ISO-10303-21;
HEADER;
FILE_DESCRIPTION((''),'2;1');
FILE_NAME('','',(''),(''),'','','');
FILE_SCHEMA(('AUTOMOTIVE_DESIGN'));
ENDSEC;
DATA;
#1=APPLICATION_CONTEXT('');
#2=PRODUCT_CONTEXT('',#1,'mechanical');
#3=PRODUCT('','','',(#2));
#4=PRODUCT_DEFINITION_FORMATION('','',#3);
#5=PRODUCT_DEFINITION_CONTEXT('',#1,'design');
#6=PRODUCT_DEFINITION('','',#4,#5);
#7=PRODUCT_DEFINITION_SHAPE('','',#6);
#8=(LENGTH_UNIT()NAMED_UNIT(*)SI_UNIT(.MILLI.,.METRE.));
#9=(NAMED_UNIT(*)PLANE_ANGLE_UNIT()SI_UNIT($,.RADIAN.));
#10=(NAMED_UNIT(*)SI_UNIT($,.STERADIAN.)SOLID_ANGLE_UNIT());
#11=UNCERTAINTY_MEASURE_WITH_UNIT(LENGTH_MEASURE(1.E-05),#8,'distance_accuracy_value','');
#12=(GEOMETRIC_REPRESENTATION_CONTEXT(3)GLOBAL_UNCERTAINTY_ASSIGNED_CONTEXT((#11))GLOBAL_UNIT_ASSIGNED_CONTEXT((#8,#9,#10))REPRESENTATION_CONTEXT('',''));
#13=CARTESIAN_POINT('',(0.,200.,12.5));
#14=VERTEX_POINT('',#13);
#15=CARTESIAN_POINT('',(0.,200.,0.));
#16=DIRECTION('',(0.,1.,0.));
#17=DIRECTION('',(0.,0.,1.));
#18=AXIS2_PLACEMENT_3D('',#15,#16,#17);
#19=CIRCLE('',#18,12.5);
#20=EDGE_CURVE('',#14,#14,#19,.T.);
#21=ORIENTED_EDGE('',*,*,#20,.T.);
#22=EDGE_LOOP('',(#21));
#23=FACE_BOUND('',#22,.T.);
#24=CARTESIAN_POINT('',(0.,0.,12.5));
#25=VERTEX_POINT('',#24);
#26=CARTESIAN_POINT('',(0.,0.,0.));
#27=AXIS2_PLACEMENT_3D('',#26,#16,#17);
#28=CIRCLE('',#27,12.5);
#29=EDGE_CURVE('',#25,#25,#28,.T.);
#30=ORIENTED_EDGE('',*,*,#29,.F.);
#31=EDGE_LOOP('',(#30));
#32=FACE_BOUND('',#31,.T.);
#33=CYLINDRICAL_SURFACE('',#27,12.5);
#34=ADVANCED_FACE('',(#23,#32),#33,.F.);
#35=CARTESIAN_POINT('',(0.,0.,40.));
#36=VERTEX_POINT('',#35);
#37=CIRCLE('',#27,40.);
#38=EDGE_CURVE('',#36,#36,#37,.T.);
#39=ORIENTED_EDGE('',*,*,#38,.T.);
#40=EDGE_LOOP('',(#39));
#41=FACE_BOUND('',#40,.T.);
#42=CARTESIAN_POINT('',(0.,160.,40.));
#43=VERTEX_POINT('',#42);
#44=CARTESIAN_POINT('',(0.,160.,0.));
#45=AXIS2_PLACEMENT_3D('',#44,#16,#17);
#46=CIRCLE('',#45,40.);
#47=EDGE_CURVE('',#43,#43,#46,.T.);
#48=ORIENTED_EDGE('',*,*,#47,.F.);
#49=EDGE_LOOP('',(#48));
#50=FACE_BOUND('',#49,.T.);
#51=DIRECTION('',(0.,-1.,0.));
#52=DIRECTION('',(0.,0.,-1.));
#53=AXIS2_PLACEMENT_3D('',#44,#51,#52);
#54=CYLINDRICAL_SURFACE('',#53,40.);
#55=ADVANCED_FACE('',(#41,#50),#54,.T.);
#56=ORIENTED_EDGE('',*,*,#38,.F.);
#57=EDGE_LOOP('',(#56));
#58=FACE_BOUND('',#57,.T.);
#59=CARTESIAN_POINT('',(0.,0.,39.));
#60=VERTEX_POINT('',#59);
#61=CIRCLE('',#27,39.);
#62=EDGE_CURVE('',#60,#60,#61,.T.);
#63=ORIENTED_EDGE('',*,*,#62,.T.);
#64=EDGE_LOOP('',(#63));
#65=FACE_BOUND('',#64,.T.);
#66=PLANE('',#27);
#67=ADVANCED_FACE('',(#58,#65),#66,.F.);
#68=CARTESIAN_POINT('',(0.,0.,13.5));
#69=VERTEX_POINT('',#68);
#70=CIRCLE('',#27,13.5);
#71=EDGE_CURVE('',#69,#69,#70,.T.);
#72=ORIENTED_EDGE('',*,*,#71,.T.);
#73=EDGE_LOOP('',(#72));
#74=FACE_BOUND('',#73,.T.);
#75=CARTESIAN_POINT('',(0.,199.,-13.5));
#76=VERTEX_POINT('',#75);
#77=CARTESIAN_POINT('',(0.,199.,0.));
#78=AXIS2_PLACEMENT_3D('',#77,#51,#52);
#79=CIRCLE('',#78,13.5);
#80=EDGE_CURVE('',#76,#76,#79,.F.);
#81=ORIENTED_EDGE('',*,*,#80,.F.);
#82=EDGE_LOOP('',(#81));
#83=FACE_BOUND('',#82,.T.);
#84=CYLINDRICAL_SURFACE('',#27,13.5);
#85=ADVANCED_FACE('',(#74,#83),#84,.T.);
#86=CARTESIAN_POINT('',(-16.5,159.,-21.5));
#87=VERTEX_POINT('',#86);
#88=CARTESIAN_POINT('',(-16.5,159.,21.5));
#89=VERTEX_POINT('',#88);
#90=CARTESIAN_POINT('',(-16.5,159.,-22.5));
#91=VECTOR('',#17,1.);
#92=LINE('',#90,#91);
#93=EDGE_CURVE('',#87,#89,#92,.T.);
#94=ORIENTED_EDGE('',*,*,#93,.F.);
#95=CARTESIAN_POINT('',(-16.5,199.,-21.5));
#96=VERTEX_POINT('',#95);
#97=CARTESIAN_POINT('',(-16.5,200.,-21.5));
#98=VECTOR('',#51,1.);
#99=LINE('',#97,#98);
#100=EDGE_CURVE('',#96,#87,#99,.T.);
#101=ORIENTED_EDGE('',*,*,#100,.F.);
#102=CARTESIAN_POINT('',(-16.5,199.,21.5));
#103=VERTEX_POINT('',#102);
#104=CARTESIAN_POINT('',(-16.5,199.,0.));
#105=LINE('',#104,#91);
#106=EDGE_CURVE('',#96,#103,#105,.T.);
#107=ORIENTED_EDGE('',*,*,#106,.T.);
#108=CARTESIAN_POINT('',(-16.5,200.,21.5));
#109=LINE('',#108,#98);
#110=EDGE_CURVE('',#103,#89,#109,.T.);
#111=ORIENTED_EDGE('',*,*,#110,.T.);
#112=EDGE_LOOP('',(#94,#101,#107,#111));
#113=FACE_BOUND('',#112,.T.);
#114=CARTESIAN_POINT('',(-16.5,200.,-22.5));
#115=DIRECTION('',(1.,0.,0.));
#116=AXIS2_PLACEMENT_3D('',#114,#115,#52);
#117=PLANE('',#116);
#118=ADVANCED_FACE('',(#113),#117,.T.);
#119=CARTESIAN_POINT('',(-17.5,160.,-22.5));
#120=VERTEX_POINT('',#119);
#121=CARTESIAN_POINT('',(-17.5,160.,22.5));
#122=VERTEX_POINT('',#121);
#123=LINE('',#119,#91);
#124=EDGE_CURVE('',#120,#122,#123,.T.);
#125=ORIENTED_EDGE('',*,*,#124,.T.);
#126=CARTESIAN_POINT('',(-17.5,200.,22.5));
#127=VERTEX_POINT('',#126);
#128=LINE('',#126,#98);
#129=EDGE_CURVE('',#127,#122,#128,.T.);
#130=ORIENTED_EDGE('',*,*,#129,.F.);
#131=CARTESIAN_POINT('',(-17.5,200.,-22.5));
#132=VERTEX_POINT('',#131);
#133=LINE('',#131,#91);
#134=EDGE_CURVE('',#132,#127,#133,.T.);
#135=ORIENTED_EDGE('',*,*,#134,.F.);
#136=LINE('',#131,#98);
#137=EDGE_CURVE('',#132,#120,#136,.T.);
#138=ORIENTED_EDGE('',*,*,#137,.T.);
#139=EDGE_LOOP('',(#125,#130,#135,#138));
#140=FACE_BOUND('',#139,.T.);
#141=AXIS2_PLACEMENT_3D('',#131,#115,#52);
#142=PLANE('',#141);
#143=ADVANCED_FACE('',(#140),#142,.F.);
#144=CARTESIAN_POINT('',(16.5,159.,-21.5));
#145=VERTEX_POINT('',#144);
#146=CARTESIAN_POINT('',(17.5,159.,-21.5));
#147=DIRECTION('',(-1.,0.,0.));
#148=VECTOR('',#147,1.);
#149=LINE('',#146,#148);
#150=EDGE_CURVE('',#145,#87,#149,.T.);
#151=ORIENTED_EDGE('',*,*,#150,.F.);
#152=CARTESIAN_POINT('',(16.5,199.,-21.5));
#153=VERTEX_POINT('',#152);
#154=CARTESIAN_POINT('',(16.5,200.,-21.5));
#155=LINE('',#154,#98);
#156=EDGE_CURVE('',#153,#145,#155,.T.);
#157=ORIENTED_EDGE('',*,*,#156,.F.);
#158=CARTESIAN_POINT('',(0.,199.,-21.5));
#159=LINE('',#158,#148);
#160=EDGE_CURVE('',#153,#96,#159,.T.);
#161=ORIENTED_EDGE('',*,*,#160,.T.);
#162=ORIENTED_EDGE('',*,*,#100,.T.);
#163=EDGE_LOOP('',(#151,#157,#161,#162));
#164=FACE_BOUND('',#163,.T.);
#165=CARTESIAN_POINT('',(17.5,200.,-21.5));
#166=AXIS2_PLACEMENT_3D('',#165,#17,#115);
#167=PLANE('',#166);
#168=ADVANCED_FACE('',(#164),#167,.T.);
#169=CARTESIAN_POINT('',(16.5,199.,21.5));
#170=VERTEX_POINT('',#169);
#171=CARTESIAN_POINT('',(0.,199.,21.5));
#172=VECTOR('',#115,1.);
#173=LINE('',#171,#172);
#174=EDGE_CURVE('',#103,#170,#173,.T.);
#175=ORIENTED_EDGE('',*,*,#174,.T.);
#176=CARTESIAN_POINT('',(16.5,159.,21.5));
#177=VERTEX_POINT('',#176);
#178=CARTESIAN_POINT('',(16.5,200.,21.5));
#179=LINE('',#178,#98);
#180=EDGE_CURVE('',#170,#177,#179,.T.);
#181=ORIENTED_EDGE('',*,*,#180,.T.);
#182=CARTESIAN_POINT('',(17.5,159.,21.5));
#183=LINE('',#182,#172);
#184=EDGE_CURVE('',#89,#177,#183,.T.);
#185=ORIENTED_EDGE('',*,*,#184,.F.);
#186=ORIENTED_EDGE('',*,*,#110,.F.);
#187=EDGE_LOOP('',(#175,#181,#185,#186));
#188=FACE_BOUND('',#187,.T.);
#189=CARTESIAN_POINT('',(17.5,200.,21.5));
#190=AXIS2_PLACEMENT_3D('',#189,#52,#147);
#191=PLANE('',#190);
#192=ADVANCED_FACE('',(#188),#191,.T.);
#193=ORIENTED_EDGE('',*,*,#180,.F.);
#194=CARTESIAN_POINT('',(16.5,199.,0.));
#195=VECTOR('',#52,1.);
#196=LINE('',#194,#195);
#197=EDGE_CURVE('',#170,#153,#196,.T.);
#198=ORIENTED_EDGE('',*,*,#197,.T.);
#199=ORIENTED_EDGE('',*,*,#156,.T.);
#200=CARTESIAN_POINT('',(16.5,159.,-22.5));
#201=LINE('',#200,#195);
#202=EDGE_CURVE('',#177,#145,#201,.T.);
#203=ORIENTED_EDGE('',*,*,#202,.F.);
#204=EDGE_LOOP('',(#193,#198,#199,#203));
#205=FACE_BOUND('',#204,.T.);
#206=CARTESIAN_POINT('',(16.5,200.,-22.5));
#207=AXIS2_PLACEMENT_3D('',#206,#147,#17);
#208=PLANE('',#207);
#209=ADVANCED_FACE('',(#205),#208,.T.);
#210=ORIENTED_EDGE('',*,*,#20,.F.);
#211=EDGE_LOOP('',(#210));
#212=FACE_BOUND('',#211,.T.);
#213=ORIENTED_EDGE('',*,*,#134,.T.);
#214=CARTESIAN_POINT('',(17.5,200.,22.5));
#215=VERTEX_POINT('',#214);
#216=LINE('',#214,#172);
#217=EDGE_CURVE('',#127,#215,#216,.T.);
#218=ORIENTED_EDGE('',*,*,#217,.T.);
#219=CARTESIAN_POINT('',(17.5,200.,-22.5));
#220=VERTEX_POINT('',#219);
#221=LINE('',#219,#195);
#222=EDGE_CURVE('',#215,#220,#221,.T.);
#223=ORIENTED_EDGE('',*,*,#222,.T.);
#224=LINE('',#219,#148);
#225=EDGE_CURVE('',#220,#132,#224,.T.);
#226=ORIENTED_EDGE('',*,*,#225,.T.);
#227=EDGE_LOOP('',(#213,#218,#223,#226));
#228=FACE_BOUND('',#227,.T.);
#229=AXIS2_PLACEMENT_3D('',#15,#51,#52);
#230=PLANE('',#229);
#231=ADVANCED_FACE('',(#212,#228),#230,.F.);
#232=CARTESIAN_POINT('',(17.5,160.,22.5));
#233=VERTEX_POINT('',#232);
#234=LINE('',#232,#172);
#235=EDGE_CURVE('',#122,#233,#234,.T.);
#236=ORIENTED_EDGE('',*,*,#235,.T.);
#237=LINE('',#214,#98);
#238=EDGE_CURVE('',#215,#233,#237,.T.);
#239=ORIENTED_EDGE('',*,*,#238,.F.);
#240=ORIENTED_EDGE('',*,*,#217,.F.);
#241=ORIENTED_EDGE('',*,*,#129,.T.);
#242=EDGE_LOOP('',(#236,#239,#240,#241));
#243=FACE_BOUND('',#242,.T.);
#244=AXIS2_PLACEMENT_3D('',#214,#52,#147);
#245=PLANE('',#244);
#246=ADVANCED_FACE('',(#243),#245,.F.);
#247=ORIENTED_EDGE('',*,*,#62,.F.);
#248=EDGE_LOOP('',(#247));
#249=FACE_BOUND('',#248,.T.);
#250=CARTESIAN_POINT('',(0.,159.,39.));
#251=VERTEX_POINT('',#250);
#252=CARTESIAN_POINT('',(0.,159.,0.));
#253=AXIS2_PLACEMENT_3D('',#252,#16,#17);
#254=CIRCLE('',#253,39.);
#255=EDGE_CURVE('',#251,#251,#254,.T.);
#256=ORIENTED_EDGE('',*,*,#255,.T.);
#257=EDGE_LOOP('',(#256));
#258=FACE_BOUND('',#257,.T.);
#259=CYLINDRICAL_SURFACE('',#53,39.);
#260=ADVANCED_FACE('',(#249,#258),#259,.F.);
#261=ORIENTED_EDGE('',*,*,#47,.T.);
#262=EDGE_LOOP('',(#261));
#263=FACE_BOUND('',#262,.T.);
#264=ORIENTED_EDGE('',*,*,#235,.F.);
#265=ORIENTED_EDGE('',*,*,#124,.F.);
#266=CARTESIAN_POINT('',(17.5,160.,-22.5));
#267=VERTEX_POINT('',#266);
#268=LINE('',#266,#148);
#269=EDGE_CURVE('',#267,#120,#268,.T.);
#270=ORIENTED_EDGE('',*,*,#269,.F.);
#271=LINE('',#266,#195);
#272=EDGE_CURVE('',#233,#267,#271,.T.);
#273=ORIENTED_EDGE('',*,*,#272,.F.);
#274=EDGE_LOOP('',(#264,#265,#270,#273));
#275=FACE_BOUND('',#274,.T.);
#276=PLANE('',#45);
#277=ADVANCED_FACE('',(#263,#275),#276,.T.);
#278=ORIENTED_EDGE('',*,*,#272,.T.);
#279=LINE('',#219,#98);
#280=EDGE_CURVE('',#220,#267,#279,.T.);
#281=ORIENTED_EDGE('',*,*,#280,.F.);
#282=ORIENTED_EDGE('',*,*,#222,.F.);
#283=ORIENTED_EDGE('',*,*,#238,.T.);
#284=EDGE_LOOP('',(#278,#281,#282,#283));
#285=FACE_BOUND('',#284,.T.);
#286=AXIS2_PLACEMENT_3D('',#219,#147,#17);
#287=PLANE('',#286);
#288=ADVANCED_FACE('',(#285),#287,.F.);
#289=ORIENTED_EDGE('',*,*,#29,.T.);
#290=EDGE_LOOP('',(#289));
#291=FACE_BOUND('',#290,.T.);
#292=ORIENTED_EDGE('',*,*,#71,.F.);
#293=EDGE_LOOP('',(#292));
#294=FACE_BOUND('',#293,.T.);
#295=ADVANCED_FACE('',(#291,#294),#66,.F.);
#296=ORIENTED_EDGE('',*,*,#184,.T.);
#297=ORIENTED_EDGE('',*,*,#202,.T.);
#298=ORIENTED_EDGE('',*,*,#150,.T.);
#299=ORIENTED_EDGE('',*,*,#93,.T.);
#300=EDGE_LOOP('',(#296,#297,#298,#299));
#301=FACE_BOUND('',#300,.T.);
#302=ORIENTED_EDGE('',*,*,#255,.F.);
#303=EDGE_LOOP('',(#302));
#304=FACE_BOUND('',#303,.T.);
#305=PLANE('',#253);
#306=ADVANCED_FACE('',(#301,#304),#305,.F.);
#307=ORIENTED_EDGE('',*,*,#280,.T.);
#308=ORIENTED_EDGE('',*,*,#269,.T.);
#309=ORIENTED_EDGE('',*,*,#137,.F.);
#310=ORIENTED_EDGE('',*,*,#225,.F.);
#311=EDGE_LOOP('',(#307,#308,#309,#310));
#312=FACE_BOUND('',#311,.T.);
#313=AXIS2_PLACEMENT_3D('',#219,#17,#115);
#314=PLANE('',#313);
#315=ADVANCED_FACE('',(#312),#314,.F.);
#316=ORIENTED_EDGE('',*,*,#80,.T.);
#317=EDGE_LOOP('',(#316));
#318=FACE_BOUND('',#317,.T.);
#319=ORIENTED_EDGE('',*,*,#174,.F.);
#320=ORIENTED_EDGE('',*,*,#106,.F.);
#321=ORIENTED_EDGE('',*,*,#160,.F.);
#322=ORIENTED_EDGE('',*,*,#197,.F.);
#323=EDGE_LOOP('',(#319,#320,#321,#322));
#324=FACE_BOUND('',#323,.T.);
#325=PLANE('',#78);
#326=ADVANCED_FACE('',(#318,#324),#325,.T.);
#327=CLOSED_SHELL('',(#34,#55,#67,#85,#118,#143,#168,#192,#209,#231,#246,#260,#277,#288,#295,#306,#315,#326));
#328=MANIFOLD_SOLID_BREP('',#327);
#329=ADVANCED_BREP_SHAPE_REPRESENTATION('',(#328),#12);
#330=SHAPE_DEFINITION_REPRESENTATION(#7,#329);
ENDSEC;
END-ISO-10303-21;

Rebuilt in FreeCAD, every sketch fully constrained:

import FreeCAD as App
import Part
import Sketcher
from FreeCAD import Vector
Q = App.Units.Quantity


def faces_at(feature, points):
    """Names of the faces that lie closest to the given points."""
    faces = feature.Shape.Faces
    near = lambda p: min(range(len(faces)), key=lambda i: faces[i].distToShape(Part.Vertex(*p))[0])
    return sorted({f"Face{near(p) + 1}" for p in points})


def add_polygon(sketch, points):
    """Adds a closed chain of lines whose ends are joined by coincident constraints."""
    first, n = sketch.GeometryCount, len(points)
    for a, b in zip(points, points[1:] + points[:1]):
        sketch.addGeometry(Part.LineSegment(App.Vector(*a, 0), App.Vector(*b, 0)), False)
    for i in range(n):
        sketch.addConstraint(Sketcher.Constraint("Coincident", first + i, 2, first + (i + 1) % n, 1))

doc = App.newDocument("Part")
params = doc.addObject("Spreadsheet::Sheet", "Params")
for row, (alias, value) in enumerate([
    ("sketch1_diameter", "80 mm"),
    ("pad1_length", "160 mm"),
    ("sketch2_width", "35 mm"),
    ("sketch2_height", "45 mm"),
    ("pad2_length", "40 mm"),
    ("sketch3_diameter", "25 mm"),
    ("thickness_wall", "1 mm"),
], start=1):
    params.set(f"A{row}", alias)
    params.set(f"B{row}", "=" + value)
    params.setAlias(f"B{row}", alias)

body = doc.addObject("PartDesign::Body", "Body")

sketch1 = body.newObject("Sketcher::SketchObject", "Sketch")
sketch1.AttachmentSupport = (doc.getObject("XZ_Plane"), [""])
sketch1.MapMode = "FlatFace"
sketch1.addGeometry(Part.Circle(Vector(0, 0, 0), Vector(0, 0, 1), 40), False)
sketch1.addConstraint([
    Sketcher.Constraint("Coincident", 0, 3, -1, 1),
    Sketcher.Constraint("Diameter", 0, Q("80 mm")),
])
sketch1.setExpression("Constraints[1]", "Params.sketch1_diameter")
pad1 = body.newObject("PartDesign::Pad", "Pad")
pad1.Profile = sketch1
pad1.setExpression("Length", "Params.pad1_length")
pad1.Reversed = True

sketch2 = body.newObject("Sketcher::SketchObject", "Sketch001")
sketch2.AttachmentSupport = (doc.getObject("XZ_Plane"), [""])
sketch2.MapMode = "FlatFace"
sketch2.AttachmentOffset = App.Placement(Vector(0, 0, -160), App.Rotation())
add_polygon(sketch2, [(-18, -22), (-18, 22), (18, 22), (18, -22)])
sketch2.addConstraint([
    Sketcher.Constraint("Vertical", 0),
    Sketcher.Constraint("Horizontal", 1),
    Sketcher.Constraint("Vertical", 2),
    Sketcher.Constraint("Horizontal", 3),
    Sketcher.Constraint("Symmetric", 0, 2, 2, 2, -1, 1),
    Sketcher.Constraint("DistanceX", 1, 1, 1, 2, Q("35 mm")),
    Sketcher.Constraint("DistanceY", 0, 1, 0, 2, Q("45 mm")),
])
sketch2.setExpression("Constraints[9]", "Params.sketch2_width")
sketch2.setExpression("Constraints[10]", "Params.sketch2_height")
pad2 = body.newObject("PartDesign::Pad", "Pad001")
pad2.Profile = sketch2
pad2.setExpression("Length", "Params.pad2_length")
pad2.Reversed = True

sketch3 = body.newObject("Sketcher::SketchObject", "Sketch002")
sketch3.AttachmentSupport = (doc.getObject("XZ_Plane"), [""])
sketch3.MapMode = "FlatFace"
sketch3.AttachmentOffset = App.Placement(Vector(0, 0, -200), App.Rotation())
sketch3.addGeometry(Part.Circle(Vector(0, 0, 0), Vector(0, 0, 1), 12), False)
sketch3.addConstraint([
    Sketcher.Constraint("Coincident", 0, 3, -1, 1),
    Sketcher.Constraint("Diameter", 0, Q("25 mm")),
])
sketch3.setExpression("Constraints[1]", "Params.sketch3_diameter")
pocket1 = body.newObject("PartDesign::Pocket", "Pocket")
pocket1.Profile = sketch3
pocket1.Type = "ThroughAll"
pocket1.Reversed = True
doc.recompute()

thickness = body.newObject("PartDesign::Thickness", "Thickness")
thickness.Base = (pocket1, faces_at(pocket1, [(-16, 0, -16)]))
thickness.setExpression("Value", "Params.thickness_wall")
thickness.Reversed = True
thickness.Join = "Intersection"

doc.recompute()
